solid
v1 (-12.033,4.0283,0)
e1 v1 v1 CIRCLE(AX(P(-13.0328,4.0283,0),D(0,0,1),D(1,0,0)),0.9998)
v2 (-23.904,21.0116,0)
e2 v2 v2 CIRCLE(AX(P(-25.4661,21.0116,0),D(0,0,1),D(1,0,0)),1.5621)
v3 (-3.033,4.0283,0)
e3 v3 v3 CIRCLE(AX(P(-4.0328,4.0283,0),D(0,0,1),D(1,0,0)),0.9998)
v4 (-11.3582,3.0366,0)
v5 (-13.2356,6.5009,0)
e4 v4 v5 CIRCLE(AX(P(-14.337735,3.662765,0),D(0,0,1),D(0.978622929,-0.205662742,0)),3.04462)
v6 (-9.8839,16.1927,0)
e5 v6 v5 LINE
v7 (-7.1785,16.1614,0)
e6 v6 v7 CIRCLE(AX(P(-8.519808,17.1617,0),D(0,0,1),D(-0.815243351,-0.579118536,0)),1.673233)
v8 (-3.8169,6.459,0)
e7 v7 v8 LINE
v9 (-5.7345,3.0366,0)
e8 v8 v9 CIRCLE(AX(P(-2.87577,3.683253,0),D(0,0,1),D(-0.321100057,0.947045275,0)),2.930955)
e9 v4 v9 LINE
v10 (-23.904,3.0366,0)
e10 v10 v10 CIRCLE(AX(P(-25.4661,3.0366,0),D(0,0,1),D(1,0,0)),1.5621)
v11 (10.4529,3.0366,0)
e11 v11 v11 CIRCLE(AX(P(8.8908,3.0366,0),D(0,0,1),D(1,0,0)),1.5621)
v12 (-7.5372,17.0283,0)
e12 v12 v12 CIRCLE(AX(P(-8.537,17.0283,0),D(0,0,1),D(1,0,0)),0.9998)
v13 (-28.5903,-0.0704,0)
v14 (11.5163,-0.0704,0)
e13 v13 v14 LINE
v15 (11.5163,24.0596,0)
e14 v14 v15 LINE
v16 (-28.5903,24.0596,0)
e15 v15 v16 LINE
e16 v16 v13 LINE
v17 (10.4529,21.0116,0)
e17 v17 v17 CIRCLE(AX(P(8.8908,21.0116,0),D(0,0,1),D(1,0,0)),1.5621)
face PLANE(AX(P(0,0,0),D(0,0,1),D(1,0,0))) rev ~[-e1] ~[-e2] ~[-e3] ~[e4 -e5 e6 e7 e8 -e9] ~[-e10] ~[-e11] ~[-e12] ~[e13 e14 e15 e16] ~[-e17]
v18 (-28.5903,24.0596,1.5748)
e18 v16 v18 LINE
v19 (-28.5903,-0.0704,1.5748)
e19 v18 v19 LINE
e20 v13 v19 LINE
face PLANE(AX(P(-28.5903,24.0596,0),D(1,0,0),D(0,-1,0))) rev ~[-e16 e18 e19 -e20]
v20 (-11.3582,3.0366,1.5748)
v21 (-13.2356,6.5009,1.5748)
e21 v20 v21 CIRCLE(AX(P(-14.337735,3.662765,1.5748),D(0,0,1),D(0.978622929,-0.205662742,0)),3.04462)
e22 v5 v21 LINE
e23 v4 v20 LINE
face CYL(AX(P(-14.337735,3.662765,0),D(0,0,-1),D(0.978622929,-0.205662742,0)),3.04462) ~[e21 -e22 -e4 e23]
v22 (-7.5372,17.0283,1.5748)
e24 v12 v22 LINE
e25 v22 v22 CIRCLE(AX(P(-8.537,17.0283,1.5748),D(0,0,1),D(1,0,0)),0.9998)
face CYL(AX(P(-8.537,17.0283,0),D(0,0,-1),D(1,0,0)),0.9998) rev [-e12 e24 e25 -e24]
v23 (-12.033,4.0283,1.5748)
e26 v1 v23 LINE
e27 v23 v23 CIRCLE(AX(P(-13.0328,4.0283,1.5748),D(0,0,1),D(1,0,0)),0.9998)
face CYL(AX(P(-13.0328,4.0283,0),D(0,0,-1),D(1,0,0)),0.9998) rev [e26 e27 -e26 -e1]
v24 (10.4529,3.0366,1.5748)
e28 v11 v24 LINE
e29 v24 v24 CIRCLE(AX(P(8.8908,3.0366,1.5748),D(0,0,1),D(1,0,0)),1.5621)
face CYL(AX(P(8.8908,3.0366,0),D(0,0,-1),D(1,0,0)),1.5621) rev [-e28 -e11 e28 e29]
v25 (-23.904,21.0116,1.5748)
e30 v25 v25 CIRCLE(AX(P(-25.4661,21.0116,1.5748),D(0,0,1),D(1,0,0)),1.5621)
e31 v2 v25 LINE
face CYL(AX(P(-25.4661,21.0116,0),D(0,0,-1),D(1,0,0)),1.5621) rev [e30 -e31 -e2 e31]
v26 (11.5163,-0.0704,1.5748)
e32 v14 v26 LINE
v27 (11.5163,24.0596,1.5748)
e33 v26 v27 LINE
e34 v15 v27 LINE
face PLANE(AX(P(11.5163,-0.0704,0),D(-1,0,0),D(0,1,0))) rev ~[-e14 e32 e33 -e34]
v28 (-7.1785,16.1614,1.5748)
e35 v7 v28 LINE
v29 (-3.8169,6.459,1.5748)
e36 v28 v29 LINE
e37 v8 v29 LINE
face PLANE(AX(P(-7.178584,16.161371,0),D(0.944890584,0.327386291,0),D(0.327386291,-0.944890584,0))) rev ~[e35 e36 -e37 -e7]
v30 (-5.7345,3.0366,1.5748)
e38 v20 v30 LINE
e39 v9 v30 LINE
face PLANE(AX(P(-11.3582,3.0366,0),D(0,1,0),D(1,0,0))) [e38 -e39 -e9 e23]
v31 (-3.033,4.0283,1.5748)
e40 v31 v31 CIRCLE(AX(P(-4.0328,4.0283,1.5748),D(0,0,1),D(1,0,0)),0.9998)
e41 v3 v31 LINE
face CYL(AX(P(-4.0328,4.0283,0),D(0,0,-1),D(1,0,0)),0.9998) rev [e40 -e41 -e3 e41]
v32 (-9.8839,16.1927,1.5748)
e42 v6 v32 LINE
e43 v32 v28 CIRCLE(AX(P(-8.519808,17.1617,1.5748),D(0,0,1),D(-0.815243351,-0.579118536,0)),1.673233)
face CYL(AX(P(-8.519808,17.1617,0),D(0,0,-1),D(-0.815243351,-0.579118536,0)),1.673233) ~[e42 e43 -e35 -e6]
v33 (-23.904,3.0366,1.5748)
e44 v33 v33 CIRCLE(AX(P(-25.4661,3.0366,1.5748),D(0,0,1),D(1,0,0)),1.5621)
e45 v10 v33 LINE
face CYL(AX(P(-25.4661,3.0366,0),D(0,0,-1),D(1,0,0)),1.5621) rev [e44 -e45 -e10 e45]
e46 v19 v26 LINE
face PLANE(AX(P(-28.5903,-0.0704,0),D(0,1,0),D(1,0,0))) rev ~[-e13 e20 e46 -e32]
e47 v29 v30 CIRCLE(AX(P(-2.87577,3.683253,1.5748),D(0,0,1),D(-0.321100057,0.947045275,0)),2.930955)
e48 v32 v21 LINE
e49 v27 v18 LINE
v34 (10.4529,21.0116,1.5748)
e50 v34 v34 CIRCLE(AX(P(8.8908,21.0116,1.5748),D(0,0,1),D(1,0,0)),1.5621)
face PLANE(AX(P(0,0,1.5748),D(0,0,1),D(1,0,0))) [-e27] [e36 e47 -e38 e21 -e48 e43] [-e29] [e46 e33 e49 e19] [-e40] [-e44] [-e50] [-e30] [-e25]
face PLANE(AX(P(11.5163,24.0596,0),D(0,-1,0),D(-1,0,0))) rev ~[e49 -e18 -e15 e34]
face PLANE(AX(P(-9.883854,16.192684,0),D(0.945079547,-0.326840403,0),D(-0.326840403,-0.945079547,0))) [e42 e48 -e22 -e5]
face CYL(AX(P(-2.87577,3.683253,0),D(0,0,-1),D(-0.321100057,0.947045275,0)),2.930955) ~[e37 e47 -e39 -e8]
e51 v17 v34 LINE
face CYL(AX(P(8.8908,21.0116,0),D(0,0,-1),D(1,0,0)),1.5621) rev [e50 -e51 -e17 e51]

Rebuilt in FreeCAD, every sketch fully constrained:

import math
import FreeCAD as App
import Part
import Sketcher
Q = App.Units.Quantity

doc = App.newDocument("Part")
body = doc.addObject("PartDesign::Body", "Body")

sketch1 = doc.addObject("Sketcher::SketchObject", "Sketch")
body.addObject(sketch1)
sketch1.AttachmentSupport = (doc.XY_Plane, [""])
sketch1.MapMode = "FlatFace"
sketch1.addGeometry([
    Part.LineSegment(App.Vector(-28.5903, 24.0596, 0), App.Vector(-28.5903, -0.0704, 0)),
    Part.LineSegment(App.Vector(-28.5903, -0.0704, 0), App.Vector(11.5163, -0.0704, 0)),
    Part.LineSegment(App.Vector(11.5163, -0.0704, 0), App.Vector(11.5163, 24.0596, 0)),
    Part.LineSegment(App.Vector(11.5163, 24.0596, 0), App.Vector(-28.5903, 24.0596, 0)),
    Part.Circle(App.Vector(-25.4661, 3.0366, 0), App.Vector(0, 0, 1), 1.5621),
    Part.Circle(App.Vector(-13.0328, 4.0283, 0), App.Vector(0, 0, 1), 0.9998),
    Part.Circle(App.Vector(-4.0328, 4.0283, 0), App.Vector(0, 0, 1), 0.9998),
    Part.Circle(App.Vector(8.8908, 3.0366, 0), App.Vector(0, 0, 1), 1.5621),
    Part.LineSegment(App.Vector(-13.2356, 6.5009, 0), App.Vector(-9.883854, 16.192684, 0)),
    Part.ArcOfCircle(Part.Circle(App.Vector(-8.5198, 17.1617, 0), App.Vector(0, 0, 1), 1.673239), math.radians(-144.611595), math.radians(-36.714436)),
    Part.LineSegment(App.Vector(-7.178584, 16.161371, 0), App.Vector(-3.8169, 6.459, 0)),
    Part.ArcOfCircle(Part.Circle(App.Vector(-2.8758, 3.6832, 0), App.Vector(0, 0, 1), 2.930996), math.radians(108.728581), math.radians(192.745085)),
    Part.LineSegment(App.Vector(-5.7345, 3.0366, 0), App.Vector(-11.3582, 3.0366, 0)),
    Part.ArcOfCircle(Part.Circle(App.Vector(-14.3377, 3.6627, 0), App.Vector(0, 0, 1), 3.044572), math.radians(-11.867238), math.radians(68.778336)),
    Part.Circle(App.Vector(-25.4661, 21.0116, 0), App.Vector(0, 0, 1), 1.5621),
    Part.Circle(App.Vector(-8.537, 17.0283, 0), App.Vector(0, 0, 1), 0.9998),
    Part.Circle(App.Vector(8.8908, 21.0116, 0), App.Vector(0, 0, 1), 1.5621),
], False)
sketch1.addConstraint([
    Sketcher.Constraint("Coincident", 0, 2, 1, 1),
    Sketcher.Constraint("Coincident", 1, 2, 2, 1),
    Sketcher.Constraint("Coincident", 2, 2, 3, 1),
    Sketcher.Constraint("Coincident", 3, 2, 0, 1),
    Sketcher.Constraint("Coincident", 8, 2, 9, 1),
    Sketcher.Constraint("Coincident", 9, 2, 10, 1),
    Sketcher.Constraint("Coincident", 10, 2, 11, 1),
    Sketcher.Constraint("Coincident", 11, 2, 12, 1),
    Sketcher.Constraint("Coincident", 12, 2, 13, 1),
    Sketcher.Constraint("Coincident", 13, 2, 8, 1),
    Sketcher.Constraint("Vertical", 0),
    Sketcher.Constraint("Horizontal", 1),
    Sketcher.Constraint("Vertical", 2),
    Sketcher.Constraint("Horizontal", 3),
    Sketcher.Constraint("Horizontal", 12),
    Sketcher.Constraint("Equal", 5, 6),
    Sketcher.Constraint("Equal", 4, 7),
    Sketcher.Constraint("Equal", 7, 14),
    Sketcher.Constraint("Equal", 6, 15),
    Sketcher.Constraint("Equal", 14, 16),
    Sketcher.Constraint("Horizontal", 5, 3, 6, 3),
    Sketcher.Constraint("Horizontal", 4, 3, 7, 3),
    Sketcher.Constraint("Horizontal", 14, 3, 16, 3),
    Sketcher.Constraint("Horizontal", 7, 3, 11, 2),
    Sketcher.Constraint("Vertical", 4, 3, 14, 3),
    Sketcher.Constraint("Vertical", 7, 3, 16, 3),
    Sketcher.Constraint("Diameter", 4, Q("0.123 in")),
    Sketcher.Constraint("DistanceY", 0, 2, 0, 1, Q("0.95 in")),
    Sketcher.Constraint("DistanceX", 1, 1, 1, 2, Q("1.579 in")),
    Sketcher.Constraint("DistanceY", 16, 3, 2, 2, Q("0.12 in")),
    Sketcher.Constraint("DistanceX", 5, 3, 15, 3, Q("0.177 in")),
    Sketcher.Constraint("DistanceX", 0, 2, 4, 3, Q("0.123 in")),
    Sketcher.Constraint("Radius", 11, Q("0.1154 in")),
    Sketcher.Constraint("DistanceY", 5, 3, 15, 3, Q("0.5118 in")),
    Sketcher.Constraint("Diameter", 5, 1.9996),
    Sketcher.Constraint("Angle", 10, Q("-70.8898 deg")),
    Sketcher.Constraint("Radius", 9, 1.6732),
    Sketcher.Constraint("Radius", 13, 3.0446),
    Sketcher.Constraint("DistanceX", 5, 3, 6, 3, 9.0),
    Sketcher.Constraint("DistanceX", 12, 2, 12, 1, Q("0.2214 in")),
    Sketcher.Constraint("DistanceY", -1, 1, 11, 3, Q("0.145 in")),
    Sketcher.Constraint("DistanceX", 11, 2, 6, 3, Q("0.067 in")),
    Sketcher.Constraint("DistanceX", 4, 3, -1, 1, Q("1.0026 in")),
    Sketcher.Constraint("DistanceX", 5, 3, -1, 1, Q("0.5131 in")),
    Sketcher.Constraint("DistanceY", -1, 1, 5, 3, Q("0.1586 in")),
    Sketcher.Constraint("DistanceY", -1, 1, 13, 3, Q("0.1442 in")),
    Sketcher.Constraint("DistanceY", -1, 1, 8, 2, Q("0.6375 in")),
    Sketcher.Constraint("DistanceY", -1, 1, 10, 2, Q("0.2543 in")),
    Sketcher.Constraint("DistanceX", 6, 3, 7, 3, Q("0.5088 in")),
    Sketcher.Constraint("DistanceY", 4, 3, 9, 3, Q("0.5561 in")),
    Sketcher.Constraint("DistanceX", 9, 3, 11, 3, Q("0.2222 in")),
    Sketcher.Constraint("DistanceX", 13, 3, 6, 3, Q("0.4057 in")),
    Sketcher.Constraint("DistanceX", 13, 3, 13, 2, Q("0.0434 in")),
    Sketcher.Constraint("DistanceY", -1, 1, 14, 3, 21.0116),
])
pad1 = doc.addObject("PartDesign::Pad", "Pad")
body.addObject(pad1)
pad1.Profile = sketch1
pad1.Length = Q("0.062 in")

doc.recompute()
